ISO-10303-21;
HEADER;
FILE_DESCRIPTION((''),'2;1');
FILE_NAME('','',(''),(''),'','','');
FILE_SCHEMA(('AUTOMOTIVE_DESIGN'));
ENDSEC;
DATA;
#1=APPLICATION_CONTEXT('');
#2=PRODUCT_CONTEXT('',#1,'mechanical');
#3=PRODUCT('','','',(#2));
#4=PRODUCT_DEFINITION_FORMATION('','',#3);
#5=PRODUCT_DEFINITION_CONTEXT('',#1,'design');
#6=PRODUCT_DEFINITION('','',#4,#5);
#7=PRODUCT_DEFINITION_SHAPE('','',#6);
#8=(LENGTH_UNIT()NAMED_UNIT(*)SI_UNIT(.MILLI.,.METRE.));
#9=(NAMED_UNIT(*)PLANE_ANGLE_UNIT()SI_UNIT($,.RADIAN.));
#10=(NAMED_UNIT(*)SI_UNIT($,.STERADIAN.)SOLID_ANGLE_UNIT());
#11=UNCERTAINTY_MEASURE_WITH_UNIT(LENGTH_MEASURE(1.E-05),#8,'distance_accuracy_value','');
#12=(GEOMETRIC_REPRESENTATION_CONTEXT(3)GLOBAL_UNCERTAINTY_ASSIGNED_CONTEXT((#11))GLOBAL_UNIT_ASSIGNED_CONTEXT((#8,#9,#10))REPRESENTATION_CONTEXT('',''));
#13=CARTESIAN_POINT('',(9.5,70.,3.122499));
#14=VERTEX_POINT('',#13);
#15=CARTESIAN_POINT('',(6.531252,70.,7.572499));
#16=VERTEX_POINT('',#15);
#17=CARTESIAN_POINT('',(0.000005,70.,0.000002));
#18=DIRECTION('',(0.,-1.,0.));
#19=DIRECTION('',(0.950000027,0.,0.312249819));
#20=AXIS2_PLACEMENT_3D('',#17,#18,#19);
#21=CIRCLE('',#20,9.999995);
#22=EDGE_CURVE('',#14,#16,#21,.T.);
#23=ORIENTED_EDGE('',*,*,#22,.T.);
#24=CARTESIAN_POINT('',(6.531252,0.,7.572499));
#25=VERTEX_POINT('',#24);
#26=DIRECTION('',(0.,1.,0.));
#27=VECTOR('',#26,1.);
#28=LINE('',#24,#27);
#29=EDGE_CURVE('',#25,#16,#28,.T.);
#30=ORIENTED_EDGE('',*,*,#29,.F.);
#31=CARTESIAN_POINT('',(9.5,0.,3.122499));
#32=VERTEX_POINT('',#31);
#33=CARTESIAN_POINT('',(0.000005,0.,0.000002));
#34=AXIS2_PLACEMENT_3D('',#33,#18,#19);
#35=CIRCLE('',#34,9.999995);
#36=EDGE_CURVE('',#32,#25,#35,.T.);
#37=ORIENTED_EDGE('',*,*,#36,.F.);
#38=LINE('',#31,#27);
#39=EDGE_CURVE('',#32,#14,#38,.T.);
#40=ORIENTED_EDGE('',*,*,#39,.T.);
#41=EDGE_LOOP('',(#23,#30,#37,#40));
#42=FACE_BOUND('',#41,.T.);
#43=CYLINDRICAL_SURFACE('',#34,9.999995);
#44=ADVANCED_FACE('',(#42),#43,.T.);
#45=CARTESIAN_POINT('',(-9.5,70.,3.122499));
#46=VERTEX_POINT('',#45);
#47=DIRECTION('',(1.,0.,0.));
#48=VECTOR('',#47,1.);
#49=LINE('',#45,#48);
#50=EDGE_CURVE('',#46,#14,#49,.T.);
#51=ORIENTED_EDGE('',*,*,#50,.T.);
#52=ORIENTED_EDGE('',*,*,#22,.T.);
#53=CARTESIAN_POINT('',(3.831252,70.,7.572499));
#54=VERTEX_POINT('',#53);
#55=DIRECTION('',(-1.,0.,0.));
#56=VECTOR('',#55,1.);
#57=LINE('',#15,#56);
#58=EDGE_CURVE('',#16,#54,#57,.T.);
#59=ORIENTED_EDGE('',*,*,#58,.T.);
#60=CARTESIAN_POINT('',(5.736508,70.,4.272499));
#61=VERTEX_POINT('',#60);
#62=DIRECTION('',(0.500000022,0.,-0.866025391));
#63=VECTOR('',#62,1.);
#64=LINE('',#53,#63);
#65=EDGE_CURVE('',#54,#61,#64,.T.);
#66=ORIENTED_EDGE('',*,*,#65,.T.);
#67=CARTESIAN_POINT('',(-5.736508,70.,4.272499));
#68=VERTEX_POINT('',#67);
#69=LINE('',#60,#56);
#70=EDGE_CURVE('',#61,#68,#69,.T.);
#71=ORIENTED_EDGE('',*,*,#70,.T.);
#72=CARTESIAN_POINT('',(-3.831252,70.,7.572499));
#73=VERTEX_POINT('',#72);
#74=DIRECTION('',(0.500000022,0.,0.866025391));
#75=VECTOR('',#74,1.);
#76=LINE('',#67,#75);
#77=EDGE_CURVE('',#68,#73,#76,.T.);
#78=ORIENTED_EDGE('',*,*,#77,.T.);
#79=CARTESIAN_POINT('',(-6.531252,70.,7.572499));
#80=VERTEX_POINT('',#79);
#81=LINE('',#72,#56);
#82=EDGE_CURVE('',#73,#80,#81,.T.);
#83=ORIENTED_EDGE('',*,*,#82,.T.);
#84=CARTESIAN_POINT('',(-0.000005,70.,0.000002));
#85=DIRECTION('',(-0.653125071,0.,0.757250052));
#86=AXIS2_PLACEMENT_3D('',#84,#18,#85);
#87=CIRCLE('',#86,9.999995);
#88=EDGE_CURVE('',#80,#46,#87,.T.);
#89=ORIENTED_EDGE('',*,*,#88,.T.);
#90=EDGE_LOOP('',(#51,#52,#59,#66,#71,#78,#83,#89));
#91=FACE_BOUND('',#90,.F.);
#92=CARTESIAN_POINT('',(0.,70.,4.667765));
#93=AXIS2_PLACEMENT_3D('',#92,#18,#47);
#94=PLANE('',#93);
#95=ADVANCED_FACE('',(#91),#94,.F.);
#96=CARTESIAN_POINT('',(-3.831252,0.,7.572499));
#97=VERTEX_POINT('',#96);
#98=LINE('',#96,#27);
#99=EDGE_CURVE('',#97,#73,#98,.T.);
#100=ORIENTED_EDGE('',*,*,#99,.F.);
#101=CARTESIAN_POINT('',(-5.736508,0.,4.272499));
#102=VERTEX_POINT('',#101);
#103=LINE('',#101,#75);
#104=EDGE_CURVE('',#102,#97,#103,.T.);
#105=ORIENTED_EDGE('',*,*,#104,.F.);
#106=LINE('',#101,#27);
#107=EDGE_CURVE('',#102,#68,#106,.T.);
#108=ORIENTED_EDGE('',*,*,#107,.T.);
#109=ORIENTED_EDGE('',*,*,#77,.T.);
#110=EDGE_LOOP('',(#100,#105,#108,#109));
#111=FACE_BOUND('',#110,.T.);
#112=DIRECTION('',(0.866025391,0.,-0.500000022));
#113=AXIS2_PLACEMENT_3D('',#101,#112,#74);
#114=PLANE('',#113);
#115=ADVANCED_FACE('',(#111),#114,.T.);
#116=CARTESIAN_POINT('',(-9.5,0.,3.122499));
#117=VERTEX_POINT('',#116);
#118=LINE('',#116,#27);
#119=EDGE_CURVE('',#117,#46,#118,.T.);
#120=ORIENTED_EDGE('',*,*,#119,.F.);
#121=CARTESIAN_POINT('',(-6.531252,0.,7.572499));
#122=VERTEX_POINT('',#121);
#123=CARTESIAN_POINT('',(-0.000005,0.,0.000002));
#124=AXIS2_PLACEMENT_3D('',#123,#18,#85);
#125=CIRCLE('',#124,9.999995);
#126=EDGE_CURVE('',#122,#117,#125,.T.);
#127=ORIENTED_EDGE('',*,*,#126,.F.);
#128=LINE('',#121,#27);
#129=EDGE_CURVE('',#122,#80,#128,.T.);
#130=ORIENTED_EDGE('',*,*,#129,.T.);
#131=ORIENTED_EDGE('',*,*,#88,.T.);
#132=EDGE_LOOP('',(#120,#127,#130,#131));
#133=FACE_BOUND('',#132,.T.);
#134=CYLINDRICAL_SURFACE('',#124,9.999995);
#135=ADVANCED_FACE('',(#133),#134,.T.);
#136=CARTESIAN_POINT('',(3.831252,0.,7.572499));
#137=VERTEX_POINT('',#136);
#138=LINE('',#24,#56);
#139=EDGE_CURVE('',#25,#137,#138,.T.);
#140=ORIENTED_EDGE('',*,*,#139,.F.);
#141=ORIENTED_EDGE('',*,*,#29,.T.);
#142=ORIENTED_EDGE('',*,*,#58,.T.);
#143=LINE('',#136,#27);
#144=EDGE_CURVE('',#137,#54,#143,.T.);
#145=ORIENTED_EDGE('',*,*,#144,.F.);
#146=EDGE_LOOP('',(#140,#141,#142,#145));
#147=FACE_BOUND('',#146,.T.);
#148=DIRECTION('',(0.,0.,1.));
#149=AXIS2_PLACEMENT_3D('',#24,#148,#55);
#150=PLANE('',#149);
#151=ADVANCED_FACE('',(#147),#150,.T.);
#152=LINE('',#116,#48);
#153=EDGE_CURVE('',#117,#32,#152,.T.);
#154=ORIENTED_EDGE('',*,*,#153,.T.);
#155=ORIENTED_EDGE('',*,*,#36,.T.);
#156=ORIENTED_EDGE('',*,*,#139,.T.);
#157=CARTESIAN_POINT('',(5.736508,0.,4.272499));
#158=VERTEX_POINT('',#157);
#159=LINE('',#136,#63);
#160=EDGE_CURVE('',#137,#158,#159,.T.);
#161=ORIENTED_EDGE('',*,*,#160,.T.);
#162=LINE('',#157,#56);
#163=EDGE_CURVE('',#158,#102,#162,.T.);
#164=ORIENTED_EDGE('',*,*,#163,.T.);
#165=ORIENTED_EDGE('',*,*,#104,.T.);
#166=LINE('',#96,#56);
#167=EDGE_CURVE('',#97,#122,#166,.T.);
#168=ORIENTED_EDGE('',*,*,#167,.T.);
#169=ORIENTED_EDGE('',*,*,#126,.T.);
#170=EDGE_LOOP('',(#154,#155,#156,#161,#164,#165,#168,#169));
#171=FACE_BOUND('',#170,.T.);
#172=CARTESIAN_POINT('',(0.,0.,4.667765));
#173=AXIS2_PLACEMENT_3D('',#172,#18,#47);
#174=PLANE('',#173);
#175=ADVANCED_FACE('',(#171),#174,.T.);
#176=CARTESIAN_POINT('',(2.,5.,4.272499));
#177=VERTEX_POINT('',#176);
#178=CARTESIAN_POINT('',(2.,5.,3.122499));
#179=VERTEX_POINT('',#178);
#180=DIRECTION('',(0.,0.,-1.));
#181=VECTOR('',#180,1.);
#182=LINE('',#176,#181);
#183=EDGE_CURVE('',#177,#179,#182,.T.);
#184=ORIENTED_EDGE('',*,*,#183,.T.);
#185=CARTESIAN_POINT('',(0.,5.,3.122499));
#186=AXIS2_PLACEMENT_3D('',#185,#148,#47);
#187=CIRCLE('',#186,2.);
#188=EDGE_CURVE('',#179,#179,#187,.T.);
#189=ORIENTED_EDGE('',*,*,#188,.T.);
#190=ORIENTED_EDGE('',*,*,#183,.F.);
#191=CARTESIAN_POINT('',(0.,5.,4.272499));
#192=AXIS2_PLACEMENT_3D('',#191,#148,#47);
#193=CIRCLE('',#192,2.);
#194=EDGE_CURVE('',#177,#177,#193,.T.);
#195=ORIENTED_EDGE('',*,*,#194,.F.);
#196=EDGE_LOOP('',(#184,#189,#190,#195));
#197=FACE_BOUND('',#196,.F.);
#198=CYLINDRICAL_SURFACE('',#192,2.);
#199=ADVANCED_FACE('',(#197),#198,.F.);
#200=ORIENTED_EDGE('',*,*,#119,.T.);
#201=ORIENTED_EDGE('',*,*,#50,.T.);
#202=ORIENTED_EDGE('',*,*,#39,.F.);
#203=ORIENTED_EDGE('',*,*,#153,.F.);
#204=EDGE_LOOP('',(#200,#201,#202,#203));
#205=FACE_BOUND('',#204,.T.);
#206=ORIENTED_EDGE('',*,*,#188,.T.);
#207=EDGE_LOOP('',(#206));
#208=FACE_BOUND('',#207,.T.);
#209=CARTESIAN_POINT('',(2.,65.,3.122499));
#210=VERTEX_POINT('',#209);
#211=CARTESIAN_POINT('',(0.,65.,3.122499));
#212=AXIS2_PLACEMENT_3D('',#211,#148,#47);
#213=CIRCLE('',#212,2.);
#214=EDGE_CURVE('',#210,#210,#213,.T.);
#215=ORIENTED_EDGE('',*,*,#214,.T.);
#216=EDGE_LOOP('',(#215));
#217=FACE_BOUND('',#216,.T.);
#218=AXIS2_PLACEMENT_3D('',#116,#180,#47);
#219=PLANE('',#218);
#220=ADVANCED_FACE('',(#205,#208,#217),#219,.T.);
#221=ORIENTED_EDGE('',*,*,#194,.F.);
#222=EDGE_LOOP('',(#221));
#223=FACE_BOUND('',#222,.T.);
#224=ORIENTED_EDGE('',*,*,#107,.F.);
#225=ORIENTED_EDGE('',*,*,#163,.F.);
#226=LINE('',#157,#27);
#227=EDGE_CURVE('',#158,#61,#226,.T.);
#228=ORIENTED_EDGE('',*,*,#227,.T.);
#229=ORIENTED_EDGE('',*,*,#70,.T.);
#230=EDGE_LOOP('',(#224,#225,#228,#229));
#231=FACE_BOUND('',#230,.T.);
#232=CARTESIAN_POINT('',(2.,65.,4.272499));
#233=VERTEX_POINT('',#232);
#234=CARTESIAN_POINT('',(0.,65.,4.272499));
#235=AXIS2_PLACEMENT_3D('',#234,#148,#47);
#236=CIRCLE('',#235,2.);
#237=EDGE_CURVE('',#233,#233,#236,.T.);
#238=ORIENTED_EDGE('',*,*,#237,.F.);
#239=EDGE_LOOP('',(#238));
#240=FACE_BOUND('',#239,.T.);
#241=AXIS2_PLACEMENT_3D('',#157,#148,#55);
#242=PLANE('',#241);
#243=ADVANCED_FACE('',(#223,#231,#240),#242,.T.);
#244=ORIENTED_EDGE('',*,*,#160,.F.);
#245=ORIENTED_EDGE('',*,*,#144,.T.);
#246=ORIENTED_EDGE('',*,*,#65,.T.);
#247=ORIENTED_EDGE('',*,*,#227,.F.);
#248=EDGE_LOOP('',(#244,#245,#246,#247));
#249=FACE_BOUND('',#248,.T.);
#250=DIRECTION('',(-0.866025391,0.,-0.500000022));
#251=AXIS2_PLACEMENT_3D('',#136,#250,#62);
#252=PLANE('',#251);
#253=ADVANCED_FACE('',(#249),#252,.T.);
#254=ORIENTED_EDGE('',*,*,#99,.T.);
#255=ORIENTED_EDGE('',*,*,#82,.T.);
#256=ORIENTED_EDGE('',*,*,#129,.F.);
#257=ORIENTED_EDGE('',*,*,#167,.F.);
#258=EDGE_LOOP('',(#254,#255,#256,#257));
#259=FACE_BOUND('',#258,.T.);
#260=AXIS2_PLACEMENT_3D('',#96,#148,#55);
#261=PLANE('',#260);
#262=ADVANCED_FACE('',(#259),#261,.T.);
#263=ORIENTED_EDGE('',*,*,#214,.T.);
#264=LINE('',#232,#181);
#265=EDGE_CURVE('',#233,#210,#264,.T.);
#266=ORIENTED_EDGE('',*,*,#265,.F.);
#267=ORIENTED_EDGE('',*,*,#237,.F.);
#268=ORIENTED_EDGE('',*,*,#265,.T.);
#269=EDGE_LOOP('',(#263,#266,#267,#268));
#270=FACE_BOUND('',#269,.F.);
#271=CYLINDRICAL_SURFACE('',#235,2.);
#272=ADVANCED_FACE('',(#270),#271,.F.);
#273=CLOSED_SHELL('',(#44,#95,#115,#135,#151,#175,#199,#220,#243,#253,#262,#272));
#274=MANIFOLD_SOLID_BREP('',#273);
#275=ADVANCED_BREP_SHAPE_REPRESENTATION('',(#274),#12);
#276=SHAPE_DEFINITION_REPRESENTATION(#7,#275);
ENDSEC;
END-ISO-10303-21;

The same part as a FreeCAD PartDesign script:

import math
import FreeCAD as App
import Part
import Sketcher
from FreeCAD import Vector
Q = App.Units.Quantity

doc = App.newDocument("Part")
params = doc.addObject("Spreadsheet::Sheet", "Params")
for row, (alias, value) in enumerate([
    ("sketch1_width", "19 mm"),
    ("sketch1_width2", "2.7 mm"),
    ("pad1_length", "70 mm"),
    ("sketch2_diameter", "4 mm"),
    ("sketch3_diameter", "4 mm"),
], start=1):
    params.set(f"A{row}", alias)
    params.set(f"B{row}", "=" + value)
    params.setAlias(f"B{row}", alias)

body = doc.addObject("PartDesign::Body", "Body")

# Sketch on XZ plane
sketch1 = body.newObject("Sketcher::SketchObject", "Sketch")
sketch1.AttachmentSupport = (doc.getObject("XZ_Plane"), [""])
sketch1.MapMode = "FlatFace"
sketch1.addGeometry([
    Part.LineSegment(Vector(-9.5, 3.1, 0), Vector(9.5, 3.1, 0)),  # 0
    Part.ArcOfCircle(Part.Circle(Vector(0, 0, 0), Vector(0, 0, 1), 10), math.radians(18), math.radians(49)),  # 1
    Part.LineSegment(Vector(6.5, 7.6, 0), Vector(3.8, 7.6, 0)),  # 2
    Part.LineSegment(Vector(3.8, 7.6, 0), Vector(5.7, 4.3, 0)),  # 3
    Part.LineSegment(Vector(5.7, 4.3, 0), Vector(-5.7, 4.3, 0)),  # 4
    Part.LineSegment(Vector(-5.7, 4.3, 0), Vector(-3.8, 7.6, 0)),  # 5
    Part.LineSegment(Vector(-3.8, 7.6, 0), Vector(-6.5, 7.6, 0)),  # 6
    Part.ArcOfCircle(Part.Circle(Vector(0, 0, 0), Vector(0, 0, 1), 10), math.radians(131), math.radians(162)),  # 7
], False)
sketch1.addConstraint([
    Sketcher.Constraint("Coincident", 0, 2, 1, 1),
    Sketcher.Constraint("Coincident", 1, 2, 2, 1),
    Sketcher.Constraint("Coincident", 2, 2, 3, 1),
    Sketcher.Constraint("Coincident", 3, 2, 4, 1),
    Sketcher.Constraint("Coincident", 4, 2, 5, 1),
    Sketcher.Constraint("Coincident", 5, 2, 6, 1),
    Sketcher.Constraint("Coincident", 6, 2, 7, 1),
    Sketcher.Constraint("Coincident", 7, 2, 0, 1),
    Sketcher.Constraint("Horizontal", 0),
    Sketcher.Constraint("Horizontal", 2),
    Sketcher.Constraint("Horizontal", 4),
    Sketcher.Constraint("Horizontal", 6),
    Sketcher.Constraint("Coincident", 1, 3, -1, 1),
    Sketcher.Constraint("Coincident", 7, 3, -1, 1),
    Sketcher.Constraint("Equal", 1, 7),
    Sketcher.Constraint("Symmetric", 2, 2, 5, 2, -2),
    Sketcher.Constraint("Equal", 3, 5),
    Sketcher.Constraint("DistanceX", 0, 1, 0, 2, Q("19 mm")),
    Sketcher.Constraint("Angle", 3, Q("-59.999999 deg")),
    Sketcher.Constraint("DistanceX", 2, 2, 2, 1, Q("2.7 mm")),
    Sketcher.Constraint("DistanceY", 3, 2, 1, 2, Q("3.3 mm")),
    Sketcher.Constraint("DistanceY", 0, 2, 1, 2, Q("4.45 mm")),
    Sketcher.Constraint("Radius", 1, Q("9.999995 mm")),
])
sketch1.setExpression("Constraints[17]", "Params.sketch1_width")
sketch1.setExpression("Constraints[19]", "Params.sketch1_width2")
pad1 = body.newObject("PartDesign::Pad", "Pad")
pad1.Profile = sketch1
pad1.setExpression("Length", "Params.pad1_length")
pad1.Reversed = True

# Sketch on XY plane
sketch2 = body.newObject("Sketcher::SketchObject", "Sketch001")
sketch2.AttachmentSupport = (doc.getObject("XY_Plane"), [""])
sketch2.MapMode = "FlatFace"
sketch2.AttachmentOffset = App.Placement(Vector(0, 0, 4.272499), App.Rotation())
sketch2.addGeometry(Part.Circle(Vector(0, 5, 0), Vector(0, 0, 1), 2), False)
sketch2.addConstraint([
    Sketcher.Constraint("PointOnObject", 0, 3, -2),
    Sketcher.Constraint("Diameter", 0, Q("4 mm")),
    Sketcher.Constraint("DistanceY", -1, 1, 0, 3, Q("5 mm")),
])
sketch2.setExpression("Constraints[1]", "Params.sketch2_diameter")
pocket1 = body.newObject("PartDesign::Pocket", "Pocket")
pocket1.Profile = sketch2
pocket1.Type = "ThroughAll"

# Sketch on XY plane
sketch3 = body.newObject("Sketcher::SketchObject", "Sketch002")
sketch3.AttachmentSupport = (doc.getObject("XY_Plane"), [""])
sketch3.MapMode = "FlatFace"
sketch3.AttachmentOffset = App.Placement(Vector(0, 0, 4.272499), App.Rotation())
sketch3.addGeometry([
    Part.Circle(Vector(0, 5, 0), Vector(0, 0, 1), 2),
    Part.Circle(Vector(0, 65, 0), Vector(0, 0, 1), 2),
], False)
sketch3.addConstraint([
    Sketcher.Constraint("Equal", 0, 1),
    Sketcher.Constraint("PointOnObject", 0, 3, -2),
    Sketcher.Constraint("PointOnObject", 1, 3, -2),
    Sketcher.Constraint("Diameter", 0, Q("4 mm")),
    Sketcher.Constraint("DistanceY", -1, 1, 0, 3, Q("5 mm")),
    Sketcher.Constraint("DistanceY", -1, 1, 1, 3, Q("65 mm")),
])
sketch3.setExpression("Constraints[3]", "Params.sketch3_diameter")
pocket2 = body.newObject("PartDesign::Pocket", "Pocket001")
pocket2.Profile = sketch3
pocket2.Type = "ThroughAll"

doc.recompute()
